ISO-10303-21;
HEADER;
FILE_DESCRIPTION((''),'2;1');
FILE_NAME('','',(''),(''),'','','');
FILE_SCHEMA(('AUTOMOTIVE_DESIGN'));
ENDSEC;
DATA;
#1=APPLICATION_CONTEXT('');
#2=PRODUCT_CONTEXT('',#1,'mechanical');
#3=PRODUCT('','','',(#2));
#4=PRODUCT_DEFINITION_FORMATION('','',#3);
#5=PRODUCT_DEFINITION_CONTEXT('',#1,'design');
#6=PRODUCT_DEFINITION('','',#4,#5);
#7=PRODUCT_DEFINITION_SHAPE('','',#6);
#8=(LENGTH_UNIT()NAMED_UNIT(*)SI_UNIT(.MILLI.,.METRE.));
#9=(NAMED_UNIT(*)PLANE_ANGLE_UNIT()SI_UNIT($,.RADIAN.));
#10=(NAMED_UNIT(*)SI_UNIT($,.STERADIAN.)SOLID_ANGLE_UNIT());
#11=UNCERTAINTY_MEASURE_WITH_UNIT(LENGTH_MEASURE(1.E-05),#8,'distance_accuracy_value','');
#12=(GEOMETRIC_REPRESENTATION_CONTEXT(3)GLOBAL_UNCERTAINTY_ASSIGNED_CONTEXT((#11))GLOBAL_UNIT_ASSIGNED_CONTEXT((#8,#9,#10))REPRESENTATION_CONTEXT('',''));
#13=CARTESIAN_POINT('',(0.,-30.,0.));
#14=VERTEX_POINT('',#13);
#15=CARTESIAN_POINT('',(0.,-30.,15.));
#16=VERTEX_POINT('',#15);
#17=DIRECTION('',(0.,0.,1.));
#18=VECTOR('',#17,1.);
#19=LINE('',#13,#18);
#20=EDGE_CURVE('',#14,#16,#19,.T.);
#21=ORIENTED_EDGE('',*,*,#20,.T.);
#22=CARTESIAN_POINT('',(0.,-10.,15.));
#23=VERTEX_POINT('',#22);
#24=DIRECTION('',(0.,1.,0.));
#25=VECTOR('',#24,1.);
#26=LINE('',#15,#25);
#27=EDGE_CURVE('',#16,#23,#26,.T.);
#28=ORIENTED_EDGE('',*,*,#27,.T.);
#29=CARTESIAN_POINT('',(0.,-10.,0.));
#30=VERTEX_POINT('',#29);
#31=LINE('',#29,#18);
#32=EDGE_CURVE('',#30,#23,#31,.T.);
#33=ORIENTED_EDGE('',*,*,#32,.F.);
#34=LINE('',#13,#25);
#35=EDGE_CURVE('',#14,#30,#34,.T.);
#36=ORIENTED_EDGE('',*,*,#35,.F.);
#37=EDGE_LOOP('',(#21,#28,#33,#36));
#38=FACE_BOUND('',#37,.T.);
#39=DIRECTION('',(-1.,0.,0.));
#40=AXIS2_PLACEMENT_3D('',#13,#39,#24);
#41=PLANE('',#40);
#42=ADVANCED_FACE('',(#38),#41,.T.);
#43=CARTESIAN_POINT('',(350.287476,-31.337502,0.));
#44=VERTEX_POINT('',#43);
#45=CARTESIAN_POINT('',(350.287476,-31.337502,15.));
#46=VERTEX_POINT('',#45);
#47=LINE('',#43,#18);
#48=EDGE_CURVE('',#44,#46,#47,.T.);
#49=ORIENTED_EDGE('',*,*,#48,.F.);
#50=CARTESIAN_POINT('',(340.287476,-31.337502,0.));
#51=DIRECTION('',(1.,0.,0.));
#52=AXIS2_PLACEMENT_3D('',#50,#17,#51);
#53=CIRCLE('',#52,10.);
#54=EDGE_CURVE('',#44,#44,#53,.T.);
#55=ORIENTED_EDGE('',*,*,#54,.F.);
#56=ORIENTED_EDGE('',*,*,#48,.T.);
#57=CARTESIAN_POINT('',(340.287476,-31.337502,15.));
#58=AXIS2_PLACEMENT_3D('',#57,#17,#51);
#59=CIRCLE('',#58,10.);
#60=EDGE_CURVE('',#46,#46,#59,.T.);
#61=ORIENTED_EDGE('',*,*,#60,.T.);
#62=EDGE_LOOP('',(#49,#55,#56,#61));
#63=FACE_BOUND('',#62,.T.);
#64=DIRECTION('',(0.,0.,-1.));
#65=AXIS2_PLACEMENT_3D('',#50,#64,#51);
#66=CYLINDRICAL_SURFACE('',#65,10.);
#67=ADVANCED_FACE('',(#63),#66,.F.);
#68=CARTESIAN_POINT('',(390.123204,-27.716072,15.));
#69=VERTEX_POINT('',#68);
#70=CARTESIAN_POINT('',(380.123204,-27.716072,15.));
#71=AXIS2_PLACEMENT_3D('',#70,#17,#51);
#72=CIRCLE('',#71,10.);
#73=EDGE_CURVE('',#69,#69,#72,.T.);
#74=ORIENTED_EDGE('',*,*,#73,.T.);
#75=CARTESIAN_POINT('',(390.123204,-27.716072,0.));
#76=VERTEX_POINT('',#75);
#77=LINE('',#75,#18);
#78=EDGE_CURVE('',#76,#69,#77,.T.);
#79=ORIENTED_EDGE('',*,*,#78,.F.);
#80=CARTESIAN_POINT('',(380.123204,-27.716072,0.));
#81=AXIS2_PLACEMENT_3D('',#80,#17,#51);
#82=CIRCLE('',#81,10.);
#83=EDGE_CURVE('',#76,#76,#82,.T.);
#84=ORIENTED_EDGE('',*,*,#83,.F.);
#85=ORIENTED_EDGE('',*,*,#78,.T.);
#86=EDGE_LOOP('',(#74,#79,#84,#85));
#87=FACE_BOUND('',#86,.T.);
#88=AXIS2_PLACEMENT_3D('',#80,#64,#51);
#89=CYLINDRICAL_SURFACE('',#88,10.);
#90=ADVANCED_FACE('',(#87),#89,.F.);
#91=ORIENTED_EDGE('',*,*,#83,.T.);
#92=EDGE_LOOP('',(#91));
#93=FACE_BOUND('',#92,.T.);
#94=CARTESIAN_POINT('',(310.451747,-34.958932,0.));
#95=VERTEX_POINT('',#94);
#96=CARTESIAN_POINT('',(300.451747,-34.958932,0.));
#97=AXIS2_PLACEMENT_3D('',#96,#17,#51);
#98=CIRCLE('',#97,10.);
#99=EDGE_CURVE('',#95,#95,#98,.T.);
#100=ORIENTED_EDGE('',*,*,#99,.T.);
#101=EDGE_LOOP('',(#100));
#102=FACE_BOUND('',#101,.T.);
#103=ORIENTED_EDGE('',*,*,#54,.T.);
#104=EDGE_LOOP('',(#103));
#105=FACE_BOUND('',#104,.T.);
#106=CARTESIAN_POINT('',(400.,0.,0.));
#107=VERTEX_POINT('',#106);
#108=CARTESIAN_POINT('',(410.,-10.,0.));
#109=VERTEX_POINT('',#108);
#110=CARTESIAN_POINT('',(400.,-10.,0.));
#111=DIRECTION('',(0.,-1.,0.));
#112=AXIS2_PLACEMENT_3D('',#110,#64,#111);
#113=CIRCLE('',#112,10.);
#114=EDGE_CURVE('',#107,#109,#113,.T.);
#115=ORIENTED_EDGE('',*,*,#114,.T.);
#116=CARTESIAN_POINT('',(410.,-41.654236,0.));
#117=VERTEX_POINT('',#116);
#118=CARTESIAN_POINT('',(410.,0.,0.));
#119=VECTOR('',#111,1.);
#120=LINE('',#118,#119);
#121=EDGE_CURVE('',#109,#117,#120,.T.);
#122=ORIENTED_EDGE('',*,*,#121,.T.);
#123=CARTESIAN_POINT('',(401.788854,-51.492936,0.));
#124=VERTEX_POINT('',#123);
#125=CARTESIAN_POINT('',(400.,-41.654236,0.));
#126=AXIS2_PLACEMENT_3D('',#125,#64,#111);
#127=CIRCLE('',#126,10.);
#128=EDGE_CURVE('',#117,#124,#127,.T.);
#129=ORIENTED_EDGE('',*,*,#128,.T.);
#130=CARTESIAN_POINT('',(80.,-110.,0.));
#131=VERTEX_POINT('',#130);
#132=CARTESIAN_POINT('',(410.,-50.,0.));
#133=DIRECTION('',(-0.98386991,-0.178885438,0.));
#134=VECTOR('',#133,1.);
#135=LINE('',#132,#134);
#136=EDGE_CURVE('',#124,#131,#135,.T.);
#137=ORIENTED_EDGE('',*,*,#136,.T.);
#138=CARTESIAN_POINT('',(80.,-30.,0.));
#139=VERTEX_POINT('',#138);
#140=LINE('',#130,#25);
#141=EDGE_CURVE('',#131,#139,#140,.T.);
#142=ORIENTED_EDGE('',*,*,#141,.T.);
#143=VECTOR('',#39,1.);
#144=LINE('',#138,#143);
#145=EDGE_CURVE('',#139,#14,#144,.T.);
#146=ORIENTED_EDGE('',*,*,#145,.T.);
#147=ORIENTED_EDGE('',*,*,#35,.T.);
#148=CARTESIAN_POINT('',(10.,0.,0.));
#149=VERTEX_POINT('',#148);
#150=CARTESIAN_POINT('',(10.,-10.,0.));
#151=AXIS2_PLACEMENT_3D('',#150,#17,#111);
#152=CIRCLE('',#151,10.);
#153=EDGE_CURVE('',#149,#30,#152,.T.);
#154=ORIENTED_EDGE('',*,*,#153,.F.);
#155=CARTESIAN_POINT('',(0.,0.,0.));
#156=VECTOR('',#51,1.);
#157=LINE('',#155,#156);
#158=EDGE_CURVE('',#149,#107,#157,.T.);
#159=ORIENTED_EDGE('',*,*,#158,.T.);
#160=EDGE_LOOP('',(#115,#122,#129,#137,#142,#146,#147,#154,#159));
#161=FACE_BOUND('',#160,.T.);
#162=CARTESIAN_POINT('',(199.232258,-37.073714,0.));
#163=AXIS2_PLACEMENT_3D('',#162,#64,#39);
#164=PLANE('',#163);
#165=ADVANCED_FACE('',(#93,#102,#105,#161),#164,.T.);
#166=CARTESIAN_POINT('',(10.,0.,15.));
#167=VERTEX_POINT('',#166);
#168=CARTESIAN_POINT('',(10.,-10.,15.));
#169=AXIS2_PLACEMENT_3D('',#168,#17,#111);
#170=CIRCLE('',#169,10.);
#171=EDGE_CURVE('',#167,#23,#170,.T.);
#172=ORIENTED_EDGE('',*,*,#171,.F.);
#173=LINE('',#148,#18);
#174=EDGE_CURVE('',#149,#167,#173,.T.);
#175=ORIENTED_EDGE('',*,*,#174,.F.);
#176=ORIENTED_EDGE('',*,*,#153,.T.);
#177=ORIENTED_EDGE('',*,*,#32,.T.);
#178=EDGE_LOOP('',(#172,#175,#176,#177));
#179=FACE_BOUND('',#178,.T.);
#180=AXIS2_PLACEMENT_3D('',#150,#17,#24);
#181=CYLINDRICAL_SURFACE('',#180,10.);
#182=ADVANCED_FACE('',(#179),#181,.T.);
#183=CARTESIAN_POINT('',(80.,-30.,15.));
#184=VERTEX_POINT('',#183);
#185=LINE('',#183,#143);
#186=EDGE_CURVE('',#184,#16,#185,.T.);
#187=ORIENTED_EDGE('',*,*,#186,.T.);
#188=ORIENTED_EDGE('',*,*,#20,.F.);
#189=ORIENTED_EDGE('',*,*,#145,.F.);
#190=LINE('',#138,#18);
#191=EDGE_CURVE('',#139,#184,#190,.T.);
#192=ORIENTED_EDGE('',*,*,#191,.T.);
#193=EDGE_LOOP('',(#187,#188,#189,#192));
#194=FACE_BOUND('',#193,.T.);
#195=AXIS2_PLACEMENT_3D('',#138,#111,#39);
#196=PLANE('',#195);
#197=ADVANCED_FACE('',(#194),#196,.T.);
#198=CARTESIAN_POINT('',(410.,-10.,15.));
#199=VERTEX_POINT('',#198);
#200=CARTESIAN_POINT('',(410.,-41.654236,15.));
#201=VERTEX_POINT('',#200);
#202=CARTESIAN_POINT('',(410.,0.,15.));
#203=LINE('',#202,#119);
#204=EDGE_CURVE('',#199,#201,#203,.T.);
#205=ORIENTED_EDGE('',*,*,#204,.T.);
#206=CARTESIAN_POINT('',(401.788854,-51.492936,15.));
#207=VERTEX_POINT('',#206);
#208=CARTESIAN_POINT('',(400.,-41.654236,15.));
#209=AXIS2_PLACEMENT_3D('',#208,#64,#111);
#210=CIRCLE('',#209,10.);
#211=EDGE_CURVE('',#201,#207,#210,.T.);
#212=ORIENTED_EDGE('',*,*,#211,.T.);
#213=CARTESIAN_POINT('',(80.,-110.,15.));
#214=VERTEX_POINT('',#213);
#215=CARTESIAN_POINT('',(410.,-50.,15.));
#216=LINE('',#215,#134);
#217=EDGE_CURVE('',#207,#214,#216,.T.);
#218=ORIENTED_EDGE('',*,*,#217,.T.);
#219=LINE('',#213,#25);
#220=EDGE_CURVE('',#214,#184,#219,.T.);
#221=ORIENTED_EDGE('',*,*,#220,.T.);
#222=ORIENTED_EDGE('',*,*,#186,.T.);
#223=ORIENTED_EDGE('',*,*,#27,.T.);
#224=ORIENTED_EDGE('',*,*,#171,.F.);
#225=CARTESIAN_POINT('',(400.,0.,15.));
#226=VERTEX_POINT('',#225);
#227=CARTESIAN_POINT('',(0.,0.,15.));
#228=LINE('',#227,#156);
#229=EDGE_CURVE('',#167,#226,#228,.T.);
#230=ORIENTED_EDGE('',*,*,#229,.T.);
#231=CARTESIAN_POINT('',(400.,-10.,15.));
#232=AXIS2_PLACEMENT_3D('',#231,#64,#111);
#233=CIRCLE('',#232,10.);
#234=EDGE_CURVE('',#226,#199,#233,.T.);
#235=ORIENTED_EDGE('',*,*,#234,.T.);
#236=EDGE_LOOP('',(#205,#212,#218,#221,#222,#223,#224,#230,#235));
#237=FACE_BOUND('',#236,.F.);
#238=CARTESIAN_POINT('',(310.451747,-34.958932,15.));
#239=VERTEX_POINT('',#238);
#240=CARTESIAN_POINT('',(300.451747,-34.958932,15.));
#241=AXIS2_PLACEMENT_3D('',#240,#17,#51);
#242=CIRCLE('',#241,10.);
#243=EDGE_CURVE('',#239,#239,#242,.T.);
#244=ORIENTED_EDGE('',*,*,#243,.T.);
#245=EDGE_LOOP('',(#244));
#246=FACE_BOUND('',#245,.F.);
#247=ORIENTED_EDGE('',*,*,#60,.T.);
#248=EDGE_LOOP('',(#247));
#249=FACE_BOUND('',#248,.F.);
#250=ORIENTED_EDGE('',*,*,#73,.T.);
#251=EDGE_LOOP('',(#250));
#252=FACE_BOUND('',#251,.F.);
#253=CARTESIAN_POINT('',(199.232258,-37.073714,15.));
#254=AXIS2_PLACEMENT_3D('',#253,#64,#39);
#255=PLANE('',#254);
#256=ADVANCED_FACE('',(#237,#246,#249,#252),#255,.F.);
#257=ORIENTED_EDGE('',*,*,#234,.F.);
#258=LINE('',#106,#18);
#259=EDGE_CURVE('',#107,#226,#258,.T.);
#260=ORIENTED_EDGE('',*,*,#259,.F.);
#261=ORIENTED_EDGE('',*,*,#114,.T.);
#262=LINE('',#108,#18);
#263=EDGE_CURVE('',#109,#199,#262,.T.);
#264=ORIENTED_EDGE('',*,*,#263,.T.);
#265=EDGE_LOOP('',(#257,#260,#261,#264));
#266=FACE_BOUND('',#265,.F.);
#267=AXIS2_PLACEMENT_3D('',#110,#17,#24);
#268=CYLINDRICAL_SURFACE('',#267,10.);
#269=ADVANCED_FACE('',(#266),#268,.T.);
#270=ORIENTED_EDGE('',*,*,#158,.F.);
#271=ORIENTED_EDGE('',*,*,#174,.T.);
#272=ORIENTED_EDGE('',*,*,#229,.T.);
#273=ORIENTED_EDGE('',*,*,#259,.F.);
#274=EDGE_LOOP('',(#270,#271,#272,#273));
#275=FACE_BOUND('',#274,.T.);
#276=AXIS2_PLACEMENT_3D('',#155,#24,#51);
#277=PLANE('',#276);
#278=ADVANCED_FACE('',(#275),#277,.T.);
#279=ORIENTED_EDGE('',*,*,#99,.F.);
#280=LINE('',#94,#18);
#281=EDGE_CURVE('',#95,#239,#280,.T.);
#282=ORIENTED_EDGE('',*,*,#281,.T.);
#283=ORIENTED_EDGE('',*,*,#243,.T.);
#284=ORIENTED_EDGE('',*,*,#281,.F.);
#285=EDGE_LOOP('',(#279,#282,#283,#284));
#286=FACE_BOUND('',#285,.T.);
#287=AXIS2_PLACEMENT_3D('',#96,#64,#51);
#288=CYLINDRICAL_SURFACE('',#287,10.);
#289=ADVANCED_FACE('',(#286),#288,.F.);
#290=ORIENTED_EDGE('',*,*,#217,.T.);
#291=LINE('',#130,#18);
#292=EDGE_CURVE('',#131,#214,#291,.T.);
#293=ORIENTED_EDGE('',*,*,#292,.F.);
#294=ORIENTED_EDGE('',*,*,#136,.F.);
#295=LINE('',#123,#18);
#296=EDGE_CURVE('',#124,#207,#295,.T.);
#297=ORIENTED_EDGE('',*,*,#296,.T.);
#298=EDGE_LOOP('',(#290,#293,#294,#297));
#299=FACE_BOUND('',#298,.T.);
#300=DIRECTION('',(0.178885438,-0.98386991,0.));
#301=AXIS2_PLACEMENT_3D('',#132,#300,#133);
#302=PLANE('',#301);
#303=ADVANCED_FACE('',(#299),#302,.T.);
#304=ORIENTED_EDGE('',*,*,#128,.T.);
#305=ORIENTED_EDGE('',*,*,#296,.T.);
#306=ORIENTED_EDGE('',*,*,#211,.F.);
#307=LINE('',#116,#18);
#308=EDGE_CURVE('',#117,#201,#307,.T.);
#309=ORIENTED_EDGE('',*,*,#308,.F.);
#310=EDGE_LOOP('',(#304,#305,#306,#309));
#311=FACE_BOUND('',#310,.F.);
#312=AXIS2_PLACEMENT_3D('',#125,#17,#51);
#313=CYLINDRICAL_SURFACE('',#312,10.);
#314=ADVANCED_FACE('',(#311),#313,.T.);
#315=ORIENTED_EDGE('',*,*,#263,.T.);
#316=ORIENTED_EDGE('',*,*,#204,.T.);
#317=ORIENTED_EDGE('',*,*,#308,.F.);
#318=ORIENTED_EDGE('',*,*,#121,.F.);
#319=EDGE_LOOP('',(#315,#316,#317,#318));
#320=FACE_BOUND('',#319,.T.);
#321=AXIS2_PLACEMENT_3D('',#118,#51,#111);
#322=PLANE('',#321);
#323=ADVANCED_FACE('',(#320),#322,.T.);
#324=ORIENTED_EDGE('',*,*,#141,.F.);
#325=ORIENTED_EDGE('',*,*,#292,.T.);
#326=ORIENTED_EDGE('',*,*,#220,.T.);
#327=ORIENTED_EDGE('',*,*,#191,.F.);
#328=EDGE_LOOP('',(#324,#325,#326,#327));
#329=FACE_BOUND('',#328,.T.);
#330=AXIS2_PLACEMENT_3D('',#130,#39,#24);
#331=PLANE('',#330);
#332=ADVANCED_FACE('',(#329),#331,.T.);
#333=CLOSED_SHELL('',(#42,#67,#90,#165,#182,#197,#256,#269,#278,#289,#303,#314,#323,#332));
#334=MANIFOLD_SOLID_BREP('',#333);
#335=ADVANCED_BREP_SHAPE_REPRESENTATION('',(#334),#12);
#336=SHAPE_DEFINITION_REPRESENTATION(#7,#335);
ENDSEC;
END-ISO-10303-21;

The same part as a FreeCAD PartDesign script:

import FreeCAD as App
import Part
import Sketcher
from FreeCAD import Vector


def edges_at(feature, points):
    """Names of the edges that pass closest to the given points."""
    edges = feature.Shape.Edges
    near = lambda p: min(range(len(edges)), key=lambda i: edges[i].distToShape(Part.Vertex(*p))[0])
    return sorted({f"Edge{near(p) + 1}" for p in points})

doc = App.newDocument("Part")
params = doc.addObject("Spreadsheet::Sheet", "Params")
for row, (alias, value) in enumerate([
    ("sketch1_diameter", "20 mm"),
    ("sketch1_width", "410 mm"),
    ("sketch1_width2", "80 mm"),
    ("sketch1_height", "30 mm"),
    ("sketch1_height2", "50 mm"),
    ("pad1_length", "15 mm"),
    ("fillet_radius", "10 mm"),
], start=1):
    params.set(f"A{row}", alias)
    params.set(f"B{row}", "=" + value)
    params.setAlias(f"B{row}", alias)

body = doc.addObject("PartDesign::Body", "Body")

# Sketch on XY plane
sketch1 = body.newObject("Sketcher::SketchObject", "Sketch")
sketch1.AttachmentSupport = (doc.getObject("XY_Plane"), [""])
sketch1.MapMode = "FlatFace"
sketch1.addGeometry(Part.LineSegment(Vector(410, 0, 0), Vector(0, 0, 0)), False)
sketch1.addGeometry(Part.LineSegment(Vector(0, 0, 0), Vector(0, -30, 0)), False)
sketch1.addGeometry(Part.LineSegment(Vector(0, -30, 0), Vector(80, -30, 0)), False)
sketch1.addGeometry(Part.LineSegment(Vector(80, -30, 0), Vector(80, -110, 0)), False)
sketch1.addGeometry(Part.LineSegment(Vector(80, -110, 0), Vector(410, -50, 0)), False)
sketch1.addGeometry(Part.LineSegment(Vector(410, -50, 0), Vector(410, 0, 0)), False)
sketch1.addGeometry(Part.Circle(Vector(340, -31, 0), Vector(0, 0, 1), 10), False)
sketch1.addGeometry(Part.Circle(Vector(300, -35, 0), Vector(0, 0, 1), 10), False)
sketch1.addGeometry(Part.Circle(Vector(380, -28, 0), Vector(0, 0, 1), 10), False)
sketch1.addConstraint(Sketcher.Constraint("Coincident", 0, 2, 1, 1))
sketch1.addConstraint(Sketcher.Constraint("Coincident", 1, 2, 2, 1))
sketch1.addConstraint(Sketcher.Constraint("Coincident", 2, 2, 3, 1))
sketch1.addConstraint(Sketcher.Constraint("Coincident", 3, 2, 4, 1))
sketch1.addConstraint(Sketcher.Constraint("Coincident", 4, 2, 5, 1))
sketch1.addConstraint(Sketcher.Constraint("Coincident", 5, 2, 0, 1))
sketch1.addConstraint(Sketcher.Constraint("Horizontal", 0))
sketch1.addConstraint(Sketcher.Constraint("Vertical", 1))
sketch1.addConstraint(Sketcher.Constraint("Horizontal", 2))
sketch1.addConstraint(Sketcher.Constraint("Vertical", 3))
sketch1.addConstraint(Sketcher.Constraint("Vertical", 5))
sketch1.addConstraint(Sketcher.Constraint("Coincident", 0, 2, -1, 1))
sketch1.addConstraint(Sketcher.Constraint("Equal", 6, 7))
sketch1.addConstraint(Sketcher.Constraint("Equal", 7, 8))
sketch1.addConstraint(Sketcher.Constraint("Equal", 2, 3))
sketch1.addConstraint(Sketcher.Constraint("Diameter", 6, 20.0))
sketch1.addConstraint(Sketcher.Constraint("DistanceX", 0, 2, 0, 1, 410.0))
sketch1.addConstraint(Sketcher.Constraint("DistanceX", 2, 1, 2, 2, 80.0))
sketch1.addConstraint(Sketcher.Constraint("DistanceY", 1, 2, 1, 1, 30.0))
sketch1.addConstraint(Sketcher.Constraint("DistanceY", 5, 1, 5, 2, 50.0))
sketch1.addConstraint(Sketcher.Constraint("DistanceX", 7, 3, 6, 3, 39.835728))
sketch1.addConstraint(Sketcher.Constraint("DistanceY", 7, 3, 6, 3, 3.62143))
sketch1.addConstraint(Sketcher.Constraint("DistanceX", 6, 3, 8, 3, 39.835728))
sketch1.addConstraint(Sketcher.Constraint("DistanceY", 6, 3, 8, 3, 3.62143))
sketch1.addConstraint(Sketcher.Constraint("DistanceX", -1, 1, 6, 3, 340.287476))
sketch1.addConstraint(Sketcher.Constraint("DistanceY", 6, 3, -1, 1, 31.337502))
sketch1.setExpression("Constraints[15]", "Params.sketch1_diameter")
sketch1.setExpression("Constraints[16]", "Params.sketch1_width")
sketch1.setExpression("Constraints[17]", "Params.sketch1_width2")
sketch1.setExpression("Constraints[18]", "Params.sketch1_height")
sketch1.setExpression("Constraints[19]", "Params.sketch1_height2")
pad1 = body.newObject("PartDesign::Pad", "Pad")
pad1.Profile = sketch1
pad1.setExpression("Length", "Params.pad1_length")
doc.recompute()

fillet = body.newObject("PartDesign::Fillet", "Fillet")
fillet.Base = (pad1, edges_at(pad1, [(0, 0, 7.5), (410, 0, 7.5), (410, -50, 7.5)]))
fillet.setExpression("Radius", "Params.fillet_radius")

doc.recompute()
